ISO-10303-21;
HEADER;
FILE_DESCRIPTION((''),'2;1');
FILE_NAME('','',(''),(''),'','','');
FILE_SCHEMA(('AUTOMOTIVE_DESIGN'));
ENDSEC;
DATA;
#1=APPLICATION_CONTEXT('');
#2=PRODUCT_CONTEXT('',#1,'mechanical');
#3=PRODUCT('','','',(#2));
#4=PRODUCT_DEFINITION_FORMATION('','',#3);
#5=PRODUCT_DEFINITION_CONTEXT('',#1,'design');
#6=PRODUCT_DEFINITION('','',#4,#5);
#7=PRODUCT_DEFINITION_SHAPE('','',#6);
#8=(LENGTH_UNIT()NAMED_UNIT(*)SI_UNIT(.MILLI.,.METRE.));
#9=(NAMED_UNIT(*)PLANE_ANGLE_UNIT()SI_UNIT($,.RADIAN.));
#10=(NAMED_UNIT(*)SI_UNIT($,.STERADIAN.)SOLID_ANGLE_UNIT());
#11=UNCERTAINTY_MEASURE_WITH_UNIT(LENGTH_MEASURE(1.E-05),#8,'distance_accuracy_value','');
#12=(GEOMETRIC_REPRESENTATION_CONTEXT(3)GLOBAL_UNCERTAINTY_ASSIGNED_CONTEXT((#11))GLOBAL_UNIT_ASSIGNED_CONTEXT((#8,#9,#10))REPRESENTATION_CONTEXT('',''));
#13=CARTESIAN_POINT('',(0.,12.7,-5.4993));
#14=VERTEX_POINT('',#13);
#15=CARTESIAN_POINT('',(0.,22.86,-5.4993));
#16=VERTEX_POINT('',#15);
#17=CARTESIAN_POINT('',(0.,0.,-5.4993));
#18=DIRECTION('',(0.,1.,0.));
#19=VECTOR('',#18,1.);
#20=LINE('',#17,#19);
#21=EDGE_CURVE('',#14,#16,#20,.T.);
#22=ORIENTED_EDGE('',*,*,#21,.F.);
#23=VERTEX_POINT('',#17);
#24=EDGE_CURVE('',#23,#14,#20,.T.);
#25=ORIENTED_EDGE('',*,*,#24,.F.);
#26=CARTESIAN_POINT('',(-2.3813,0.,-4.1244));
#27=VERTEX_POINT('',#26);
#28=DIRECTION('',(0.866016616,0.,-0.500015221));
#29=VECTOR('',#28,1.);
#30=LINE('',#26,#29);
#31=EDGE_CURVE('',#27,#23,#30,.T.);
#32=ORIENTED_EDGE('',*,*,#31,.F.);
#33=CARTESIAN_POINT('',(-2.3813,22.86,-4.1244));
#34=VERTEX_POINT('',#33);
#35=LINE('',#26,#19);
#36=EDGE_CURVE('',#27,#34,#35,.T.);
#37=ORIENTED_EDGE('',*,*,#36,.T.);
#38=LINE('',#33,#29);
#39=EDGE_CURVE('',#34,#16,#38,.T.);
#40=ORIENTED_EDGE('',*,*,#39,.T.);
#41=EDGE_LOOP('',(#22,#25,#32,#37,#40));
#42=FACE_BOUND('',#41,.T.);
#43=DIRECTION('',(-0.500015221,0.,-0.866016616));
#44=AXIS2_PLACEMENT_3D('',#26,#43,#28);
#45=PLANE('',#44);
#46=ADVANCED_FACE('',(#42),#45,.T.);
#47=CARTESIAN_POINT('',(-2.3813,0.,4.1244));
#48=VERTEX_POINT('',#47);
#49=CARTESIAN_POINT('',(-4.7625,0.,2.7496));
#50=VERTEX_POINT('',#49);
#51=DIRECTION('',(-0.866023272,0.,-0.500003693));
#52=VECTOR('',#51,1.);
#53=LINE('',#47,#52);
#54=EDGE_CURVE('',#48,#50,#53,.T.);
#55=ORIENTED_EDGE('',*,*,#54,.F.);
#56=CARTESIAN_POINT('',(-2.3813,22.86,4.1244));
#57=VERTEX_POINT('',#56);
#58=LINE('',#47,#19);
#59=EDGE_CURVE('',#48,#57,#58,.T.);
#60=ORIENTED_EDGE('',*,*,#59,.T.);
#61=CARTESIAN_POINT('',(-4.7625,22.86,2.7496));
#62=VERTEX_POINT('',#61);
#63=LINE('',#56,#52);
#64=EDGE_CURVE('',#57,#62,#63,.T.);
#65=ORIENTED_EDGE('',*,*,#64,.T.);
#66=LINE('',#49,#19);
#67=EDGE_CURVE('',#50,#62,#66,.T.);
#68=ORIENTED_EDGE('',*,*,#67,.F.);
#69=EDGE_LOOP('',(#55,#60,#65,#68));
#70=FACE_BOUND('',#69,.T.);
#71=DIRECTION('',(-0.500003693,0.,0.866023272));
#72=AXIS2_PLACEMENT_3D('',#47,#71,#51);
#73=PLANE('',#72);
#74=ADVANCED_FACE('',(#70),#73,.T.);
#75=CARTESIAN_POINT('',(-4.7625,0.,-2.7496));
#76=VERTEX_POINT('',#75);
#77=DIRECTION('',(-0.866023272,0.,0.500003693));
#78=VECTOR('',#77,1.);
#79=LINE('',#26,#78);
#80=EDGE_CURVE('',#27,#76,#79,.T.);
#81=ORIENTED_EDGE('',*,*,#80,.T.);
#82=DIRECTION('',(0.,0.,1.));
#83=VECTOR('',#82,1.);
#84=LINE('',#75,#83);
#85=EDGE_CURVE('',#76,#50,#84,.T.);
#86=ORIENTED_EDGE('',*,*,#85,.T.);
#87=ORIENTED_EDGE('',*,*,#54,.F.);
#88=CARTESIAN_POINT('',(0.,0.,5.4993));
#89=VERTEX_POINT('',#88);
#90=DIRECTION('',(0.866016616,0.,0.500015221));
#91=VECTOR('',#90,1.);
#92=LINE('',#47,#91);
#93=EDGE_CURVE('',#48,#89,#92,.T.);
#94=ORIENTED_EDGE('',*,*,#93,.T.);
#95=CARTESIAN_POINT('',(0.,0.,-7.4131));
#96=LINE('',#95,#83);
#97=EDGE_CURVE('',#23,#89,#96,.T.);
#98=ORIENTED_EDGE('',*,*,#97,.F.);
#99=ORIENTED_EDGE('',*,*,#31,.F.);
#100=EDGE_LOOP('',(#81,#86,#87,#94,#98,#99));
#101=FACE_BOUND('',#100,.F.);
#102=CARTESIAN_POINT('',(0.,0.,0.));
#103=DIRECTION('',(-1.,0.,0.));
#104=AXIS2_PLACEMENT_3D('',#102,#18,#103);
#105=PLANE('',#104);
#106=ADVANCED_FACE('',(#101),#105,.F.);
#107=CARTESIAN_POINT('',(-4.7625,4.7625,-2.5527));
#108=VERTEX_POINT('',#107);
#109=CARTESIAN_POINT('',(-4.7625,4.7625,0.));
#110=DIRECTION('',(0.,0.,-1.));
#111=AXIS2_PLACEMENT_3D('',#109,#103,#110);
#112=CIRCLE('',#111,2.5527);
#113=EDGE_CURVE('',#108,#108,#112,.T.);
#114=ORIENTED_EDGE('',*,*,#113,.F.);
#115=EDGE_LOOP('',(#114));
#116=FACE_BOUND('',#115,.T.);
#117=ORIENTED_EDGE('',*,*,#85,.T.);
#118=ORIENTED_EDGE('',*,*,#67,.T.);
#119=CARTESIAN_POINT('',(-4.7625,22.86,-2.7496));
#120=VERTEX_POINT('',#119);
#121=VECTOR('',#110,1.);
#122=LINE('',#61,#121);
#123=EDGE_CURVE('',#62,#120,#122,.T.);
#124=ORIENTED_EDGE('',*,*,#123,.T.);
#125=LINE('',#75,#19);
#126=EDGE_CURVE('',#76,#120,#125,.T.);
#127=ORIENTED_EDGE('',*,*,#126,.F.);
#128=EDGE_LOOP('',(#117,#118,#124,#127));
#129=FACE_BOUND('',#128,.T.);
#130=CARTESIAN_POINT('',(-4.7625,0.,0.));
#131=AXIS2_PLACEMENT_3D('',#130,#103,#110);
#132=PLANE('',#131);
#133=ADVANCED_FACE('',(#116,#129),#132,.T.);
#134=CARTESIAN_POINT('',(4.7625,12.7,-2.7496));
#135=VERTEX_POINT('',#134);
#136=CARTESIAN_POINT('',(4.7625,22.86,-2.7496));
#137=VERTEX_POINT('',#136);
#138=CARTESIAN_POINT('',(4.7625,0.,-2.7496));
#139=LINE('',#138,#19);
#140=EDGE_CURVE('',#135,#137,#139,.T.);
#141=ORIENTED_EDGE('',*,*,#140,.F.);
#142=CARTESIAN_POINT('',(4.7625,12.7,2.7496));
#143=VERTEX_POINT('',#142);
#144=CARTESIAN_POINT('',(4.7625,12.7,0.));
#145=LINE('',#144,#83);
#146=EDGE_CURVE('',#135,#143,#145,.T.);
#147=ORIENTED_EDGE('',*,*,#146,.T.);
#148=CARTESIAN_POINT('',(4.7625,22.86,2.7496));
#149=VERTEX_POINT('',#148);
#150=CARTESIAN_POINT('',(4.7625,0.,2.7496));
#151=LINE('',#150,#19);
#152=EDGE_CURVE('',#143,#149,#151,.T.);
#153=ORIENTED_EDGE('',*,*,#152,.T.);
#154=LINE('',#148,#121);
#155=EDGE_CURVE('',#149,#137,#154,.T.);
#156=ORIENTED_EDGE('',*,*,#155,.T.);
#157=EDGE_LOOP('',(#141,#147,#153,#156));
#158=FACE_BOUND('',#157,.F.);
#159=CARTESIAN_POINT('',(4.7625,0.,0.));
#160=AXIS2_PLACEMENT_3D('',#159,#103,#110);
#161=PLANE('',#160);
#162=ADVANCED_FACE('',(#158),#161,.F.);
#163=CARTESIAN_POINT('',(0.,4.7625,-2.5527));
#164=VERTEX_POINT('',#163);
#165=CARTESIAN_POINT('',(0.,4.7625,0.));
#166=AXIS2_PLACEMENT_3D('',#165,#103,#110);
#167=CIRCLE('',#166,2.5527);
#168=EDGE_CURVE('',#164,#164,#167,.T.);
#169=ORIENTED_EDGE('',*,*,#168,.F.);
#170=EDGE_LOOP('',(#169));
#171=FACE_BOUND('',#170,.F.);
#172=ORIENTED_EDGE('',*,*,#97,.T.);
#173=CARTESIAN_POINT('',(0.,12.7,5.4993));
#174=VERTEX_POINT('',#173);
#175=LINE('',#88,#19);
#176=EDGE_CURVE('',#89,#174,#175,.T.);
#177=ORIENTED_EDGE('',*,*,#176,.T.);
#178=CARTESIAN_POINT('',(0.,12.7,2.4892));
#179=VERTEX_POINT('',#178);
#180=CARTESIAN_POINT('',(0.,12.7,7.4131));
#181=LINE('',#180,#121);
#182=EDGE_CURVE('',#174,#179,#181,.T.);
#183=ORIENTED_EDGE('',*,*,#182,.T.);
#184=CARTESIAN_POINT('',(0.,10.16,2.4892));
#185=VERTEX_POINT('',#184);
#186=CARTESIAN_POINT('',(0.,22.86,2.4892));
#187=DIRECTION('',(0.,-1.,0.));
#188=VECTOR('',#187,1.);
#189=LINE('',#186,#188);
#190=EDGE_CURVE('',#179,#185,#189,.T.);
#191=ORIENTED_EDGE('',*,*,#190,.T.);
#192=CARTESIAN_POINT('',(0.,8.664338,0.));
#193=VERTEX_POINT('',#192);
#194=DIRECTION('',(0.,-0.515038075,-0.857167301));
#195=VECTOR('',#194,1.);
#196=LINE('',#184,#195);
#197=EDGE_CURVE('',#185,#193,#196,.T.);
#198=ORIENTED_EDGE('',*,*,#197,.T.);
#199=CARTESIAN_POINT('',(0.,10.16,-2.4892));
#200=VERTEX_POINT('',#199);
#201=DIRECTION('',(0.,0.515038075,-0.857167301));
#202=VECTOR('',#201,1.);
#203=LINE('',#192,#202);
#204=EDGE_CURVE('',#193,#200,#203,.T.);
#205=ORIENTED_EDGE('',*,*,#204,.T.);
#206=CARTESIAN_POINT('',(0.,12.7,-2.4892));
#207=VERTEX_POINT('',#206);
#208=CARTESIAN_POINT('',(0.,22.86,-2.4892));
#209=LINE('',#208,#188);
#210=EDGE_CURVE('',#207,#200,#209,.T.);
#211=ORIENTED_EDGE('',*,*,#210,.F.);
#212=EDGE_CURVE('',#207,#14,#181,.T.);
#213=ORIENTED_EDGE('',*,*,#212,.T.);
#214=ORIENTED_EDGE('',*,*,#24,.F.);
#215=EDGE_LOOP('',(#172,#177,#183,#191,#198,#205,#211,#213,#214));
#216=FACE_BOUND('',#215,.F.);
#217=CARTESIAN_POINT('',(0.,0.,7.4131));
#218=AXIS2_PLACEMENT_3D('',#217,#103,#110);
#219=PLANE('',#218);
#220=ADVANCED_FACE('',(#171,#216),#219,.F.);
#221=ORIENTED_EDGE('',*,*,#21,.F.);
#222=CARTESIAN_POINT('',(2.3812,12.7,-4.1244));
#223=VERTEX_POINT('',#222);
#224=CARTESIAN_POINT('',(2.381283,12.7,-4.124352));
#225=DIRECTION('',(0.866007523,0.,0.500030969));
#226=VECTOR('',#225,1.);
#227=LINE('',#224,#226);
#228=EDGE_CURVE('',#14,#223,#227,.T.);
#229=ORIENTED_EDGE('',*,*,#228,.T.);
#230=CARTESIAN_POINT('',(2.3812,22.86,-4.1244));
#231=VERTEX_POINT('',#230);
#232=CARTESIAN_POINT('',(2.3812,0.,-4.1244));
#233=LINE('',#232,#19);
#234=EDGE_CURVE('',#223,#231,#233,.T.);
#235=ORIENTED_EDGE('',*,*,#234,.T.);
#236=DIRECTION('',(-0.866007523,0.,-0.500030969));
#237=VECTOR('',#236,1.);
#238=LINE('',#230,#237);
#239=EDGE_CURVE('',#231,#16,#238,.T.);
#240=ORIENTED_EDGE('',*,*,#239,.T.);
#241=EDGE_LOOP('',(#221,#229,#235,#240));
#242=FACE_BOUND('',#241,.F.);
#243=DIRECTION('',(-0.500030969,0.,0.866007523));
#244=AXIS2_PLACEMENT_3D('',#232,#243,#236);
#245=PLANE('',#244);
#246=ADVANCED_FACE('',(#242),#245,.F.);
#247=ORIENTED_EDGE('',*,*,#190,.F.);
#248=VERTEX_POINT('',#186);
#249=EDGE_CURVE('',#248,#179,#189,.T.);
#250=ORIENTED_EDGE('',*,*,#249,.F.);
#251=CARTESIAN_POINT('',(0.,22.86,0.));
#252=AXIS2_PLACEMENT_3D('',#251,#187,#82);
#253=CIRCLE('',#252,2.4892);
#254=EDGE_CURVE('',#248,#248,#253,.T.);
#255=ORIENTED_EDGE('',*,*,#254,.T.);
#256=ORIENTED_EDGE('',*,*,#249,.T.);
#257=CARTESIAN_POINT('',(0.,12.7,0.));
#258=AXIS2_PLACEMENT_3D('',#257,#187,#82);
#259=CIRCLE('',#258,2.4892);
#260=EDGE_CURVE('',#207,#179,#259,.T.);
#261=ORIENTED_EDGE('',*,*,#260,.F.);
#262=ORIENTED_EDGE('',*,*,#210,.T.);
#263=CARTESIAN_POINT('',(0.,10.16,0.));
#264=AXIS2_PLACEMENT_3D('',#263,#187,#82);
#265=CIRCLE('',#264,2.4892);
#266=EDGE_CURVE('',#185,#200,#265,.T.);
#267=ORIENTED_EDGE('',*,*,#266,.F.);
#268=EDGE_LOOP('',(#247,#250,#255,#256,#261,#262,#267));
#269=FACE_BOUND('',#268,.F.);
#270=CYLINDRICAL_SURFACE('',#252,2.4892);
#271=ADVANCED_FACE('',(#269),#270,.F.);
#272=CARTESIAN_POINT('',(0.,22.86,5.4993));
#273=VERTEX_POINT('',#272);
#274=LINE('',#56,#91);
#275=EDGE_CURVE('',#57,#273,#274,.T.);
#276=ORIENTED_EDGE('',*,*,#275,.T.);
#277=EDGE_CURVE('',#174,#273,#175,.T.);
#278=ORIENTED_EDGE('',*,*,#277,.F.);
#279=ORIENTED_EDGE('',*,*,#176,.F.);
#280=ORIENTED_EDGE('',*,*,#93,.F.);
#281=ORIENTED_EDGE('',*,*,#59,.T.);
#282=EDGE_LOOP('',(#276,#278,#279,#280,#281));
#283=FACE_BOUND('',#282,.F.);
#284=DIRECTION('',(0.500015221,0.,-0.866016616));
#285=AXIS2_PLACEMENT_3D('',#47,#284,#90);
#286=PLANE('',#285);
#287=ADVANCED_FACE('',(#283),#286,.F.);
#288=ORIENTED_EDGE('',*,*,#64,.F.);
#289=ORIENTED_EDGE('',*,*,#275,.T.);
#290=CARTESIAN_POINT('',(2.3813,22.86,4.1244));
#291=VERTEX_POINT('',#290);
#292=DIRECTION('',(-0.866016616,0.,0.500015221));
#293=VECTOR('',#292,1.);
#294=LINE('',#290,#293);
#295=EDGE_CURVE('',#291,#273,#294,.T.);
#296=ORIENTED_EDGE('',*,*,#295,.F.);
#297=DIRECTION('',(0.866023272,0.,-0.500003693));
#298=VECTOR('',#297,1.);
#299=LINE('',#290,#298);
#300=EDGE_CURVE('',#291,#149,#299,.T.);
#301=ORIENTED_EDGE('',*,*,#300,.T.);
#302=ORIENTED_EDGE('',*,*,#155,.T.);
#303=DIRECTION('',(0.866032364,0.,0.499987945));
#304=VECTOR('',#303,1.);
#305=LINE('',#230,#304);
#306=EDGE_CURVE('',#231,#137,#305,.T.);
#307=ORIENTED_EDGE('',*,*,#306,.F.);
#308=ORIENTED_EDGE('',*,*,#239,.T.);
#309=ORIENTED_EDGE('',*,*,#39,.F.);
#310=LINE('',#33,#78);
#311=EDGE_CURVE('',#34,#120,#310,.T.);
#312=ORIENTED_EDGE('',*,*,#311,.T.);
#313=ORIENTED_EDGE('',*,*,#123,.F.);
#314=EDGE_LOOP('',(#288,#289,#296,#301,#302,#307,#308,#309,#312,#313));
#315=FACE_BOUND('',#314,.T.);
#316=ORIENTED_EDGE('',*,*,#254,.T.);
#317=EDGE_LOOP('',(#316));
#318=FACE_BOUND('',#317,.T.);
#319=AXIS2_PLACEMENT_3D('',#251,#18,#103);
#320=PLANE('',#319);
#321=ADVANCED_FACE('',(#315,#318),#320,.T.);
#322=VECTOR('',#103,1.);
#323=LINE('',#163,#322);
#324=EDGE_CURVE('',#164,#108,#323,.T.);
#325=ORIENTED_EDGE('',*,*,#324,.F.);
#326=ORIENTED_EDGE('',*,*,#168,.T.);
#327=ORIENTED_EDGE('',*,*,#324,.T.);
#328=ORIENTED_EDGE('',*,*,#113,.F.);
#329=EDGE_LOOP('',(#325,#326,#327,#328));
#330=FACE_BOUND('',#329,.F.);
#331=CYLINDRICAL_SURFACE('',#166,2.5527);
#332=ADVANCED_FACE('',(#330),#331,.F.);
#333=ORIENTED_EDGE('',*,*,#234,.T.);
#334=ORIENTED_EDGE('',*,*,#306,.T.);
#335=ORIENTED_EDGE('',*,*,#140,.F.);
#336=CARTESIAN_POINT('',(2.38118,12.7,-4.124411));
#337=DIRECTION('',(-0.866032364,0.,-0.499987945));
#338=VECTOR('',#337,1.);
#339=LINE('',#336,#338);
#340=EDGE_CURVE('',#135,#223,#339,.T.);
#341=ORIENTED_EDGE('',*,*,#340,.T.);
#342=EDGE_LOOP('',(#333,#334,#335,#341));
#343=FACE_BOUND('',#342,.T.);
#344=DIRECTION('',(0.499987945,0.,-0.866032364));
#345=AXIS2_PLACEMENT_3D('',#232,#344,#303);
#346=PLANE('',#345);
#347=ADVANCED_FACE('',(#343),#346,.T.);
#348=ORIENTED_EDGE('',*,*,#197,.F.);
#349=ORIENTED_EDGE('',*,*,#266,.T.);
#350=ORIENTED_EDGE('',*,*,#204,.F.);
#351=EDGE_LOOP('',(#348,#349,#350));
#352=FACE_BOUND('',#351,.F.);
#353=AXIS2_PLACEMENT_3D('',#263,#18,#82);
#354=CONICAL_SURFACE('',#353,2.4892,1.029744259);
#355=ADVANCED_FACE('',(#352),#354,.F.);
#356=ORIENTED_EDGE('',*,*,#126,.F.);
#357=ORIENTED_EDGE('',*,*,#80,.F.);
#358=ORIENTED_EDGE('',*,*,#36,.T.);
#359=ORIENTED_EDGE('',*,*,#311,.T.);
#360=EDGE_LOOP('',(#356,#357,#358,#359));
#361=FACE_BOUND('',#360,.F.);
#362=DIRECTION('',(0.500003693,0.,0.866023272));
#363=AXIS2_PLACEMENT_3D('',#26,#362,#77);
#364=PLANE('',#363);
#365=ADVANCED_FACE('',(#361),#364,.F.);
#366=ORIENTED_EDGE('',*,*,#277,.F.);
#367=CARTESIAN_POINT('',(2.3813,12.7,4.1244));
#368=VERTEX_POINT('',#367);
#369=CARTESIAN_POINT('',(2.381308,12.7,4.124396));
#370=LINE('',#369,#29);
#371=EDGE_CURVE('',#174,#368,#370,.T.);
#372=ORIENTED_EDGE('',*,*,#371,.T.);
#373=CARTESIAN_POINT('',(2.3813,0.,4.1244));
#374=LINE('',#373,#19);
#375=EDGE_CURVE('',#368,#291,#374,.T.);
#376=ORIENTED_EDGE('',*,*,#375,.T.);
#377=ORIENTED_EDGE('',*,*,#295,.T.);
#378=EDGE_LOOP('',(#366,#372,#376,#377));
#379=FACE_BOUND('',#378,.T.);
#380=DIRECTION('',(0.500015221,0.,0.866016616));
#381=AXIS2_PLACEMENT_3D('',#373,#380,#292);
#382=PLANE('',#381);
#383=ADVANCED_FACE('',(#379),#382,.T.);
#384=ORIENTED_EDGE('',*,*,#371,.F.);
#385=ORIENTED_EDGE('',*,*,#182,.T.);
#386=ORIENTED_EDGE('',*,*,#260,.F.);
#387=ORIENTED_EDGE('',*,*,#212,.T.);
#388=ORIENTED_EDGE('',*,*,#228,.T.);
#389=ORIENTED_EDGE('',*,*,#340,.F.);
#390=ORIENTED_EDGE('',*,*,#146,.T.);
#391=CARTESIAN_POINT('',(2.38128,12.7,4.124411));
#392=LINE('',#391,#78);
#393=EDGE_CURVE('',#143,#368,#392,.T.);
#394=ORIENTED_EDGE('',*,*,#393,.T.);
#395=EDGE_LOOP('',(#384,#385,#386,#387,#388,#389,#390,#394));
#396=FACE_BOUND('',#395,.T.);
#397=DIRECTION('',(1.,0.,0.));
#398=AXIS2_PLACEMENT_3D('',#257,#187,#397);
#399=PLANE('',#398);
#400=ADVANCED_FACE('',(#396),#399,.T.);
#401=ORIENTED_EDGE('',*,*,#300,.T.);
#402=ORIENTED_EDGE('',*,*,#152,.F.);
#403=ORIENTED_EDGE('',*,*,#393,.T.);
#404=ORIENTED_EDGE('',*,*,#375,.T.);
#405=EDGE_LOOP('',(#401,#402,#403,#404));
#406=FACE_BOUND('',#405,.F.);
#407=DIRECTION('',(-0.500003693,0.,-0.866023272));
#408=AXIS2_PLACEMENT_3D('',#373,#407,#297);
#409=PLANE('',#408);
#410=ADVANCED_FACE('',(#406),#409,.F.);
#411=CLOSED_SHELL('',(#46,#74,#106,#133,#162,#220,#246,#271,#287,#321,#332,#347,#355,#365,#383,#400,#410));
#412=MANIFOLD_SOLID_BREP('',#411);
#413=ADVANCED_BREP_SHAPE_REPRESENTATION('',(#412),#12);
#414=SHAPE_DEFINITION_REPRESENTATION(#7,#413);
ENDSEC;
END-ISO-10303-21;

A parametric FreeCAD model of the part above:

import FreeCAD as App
import Part
import Sketcher
Q = App.Units.Quantity

doc = App.newDocument("Part")
params = doc.addObject("Spreadsheet::Sheet", "Params")
for row, (alias, value) in enumerate([
    ("pad1_length", "0.9 in"),
    ("sketch2_diameter", "0.196 in"),
    ("hole_diameter", "0.196 in"),
    ("hole_depth", "0.5 in"),
    ("pocket1_length", "0.5 in"),
    ("sketch4_diameter", "0.201 in"),
    ("hole2_diameter", "0.201 in"),
], start=1):
    params.set(f"A{row}", alias)
    params.set(f"B{row}", "=" + value)
    params.setAlias(f"B{row}", alias)

body = doc.addObject("PartDesign::Body", "Body")

# Sketch on XZ plane
sketch1 = body.newObject("Sketcher::SketchObject", "Sketch")
sketch1.AttachmentSupport = (doc.getObject("XZ_Plane"), [""])
sketch1.MapMode = "FlatFace"
sketch1.addGeometry([
    Part.LineSegment(App.Vector(-4.8, -2.7, 0), App.Vector(-4.8, 2.7, 0)),  # 0
    Part.LineSegment(App.Vector(-4.8, 2.7, 0), App.Vector(-2.4, 4.1, 0)),  # 1
    Part.LineSegment(App.Vector(-2.4, 4.1, 0), App.Vector(0, 5.5, 0)),  # 2
    Part.LineSegment(App.Vector(0, 5.5, 0), App.Vector(2.4, 4.1, 0)),  # 3
    Part.LineSegment(App.Vector(2.4, 4.1, 0), App.Vector(4.8, 2.7, 0)),  # 4
    Part.LineSegment(App.Vector(4.8, 2.7, 0), App.Vector(4.8, -2.7, 0)),  # 5
    Part.LineSegment(App.Vector(4.8, -2.7, 0), App.Vector(2.4, -4.1, 0)),  # 6
    Part.LineSegment(App.Vector(2.4, -4.1, 0), App.Vector(0, -5.5, 0)),  # 7
    Part.LineSegment(App.Vector(0, -5.5, 0), App.Vector(-2.4, -4.1, 0)),  # 8
    Part.LineSegment(App.Vector(-2.4, -4.1, 0), App.Vector(-4.8, -2.7, 0)),  # 9
], False)
sketch1.addConstraint([
    Sketcher.Constraint("Coincident", 0, 2, 1, 1),
    Sketcher.Constraint("Coincident", 1, 2, 2, 1),
    Sketcher.Constraint("Coincident", 2, 2, 3, 1),
    Sketcher.Constraint("Coincident", 3, 2, 4, 1),
    Sketcher.Constraint("Coincident", 4, 2, 5, 1),
    Sketcher.Constraint("Coincident", 5, 2, 6, 1),
    Sketcher.Constraint("Coincident", 6, 2, 7, 1),
    Sketcher.Constraint("Coincident", 7, 2, 8, 1),
    Sketcher.Constraint("Coincident", 8, 2, 9, 1),
    Sketcher.Constraint("Coincident", 9, 2, 0, 1),
    Sketcher.Constraint("Vertical", 0),
    Sketcher.Constraint("Vertical", 5),
    Sketcher.Constraint("Symmetric", 0, 2, 5, 2, -1, 1),
    Sketcher.Constraint("Symmetric", 1, 2, 6, 2, -1, 1),
    Sketcher.Constraint("Symmetric", 2, 2, 7, 2, -1, 1),
    Sketcher.Constraint("Symmetric", 3, 2, 8, 2, -1, 1),
    Sketcher.Constraint("Symmetric", 1, 2, 3, 2, -2),
    Sketcher.Constraint("PointOnObject", 2, 2, -2),
    Sketcher.Constraint("Parallel", 1, 2),
    Sketcher.Constraint("Parallel", 3, 4),
    Sketcher.Constraint("Parallel", 8, 9),
    Sketcher.Constraint("Equal", 1, 2),
    Sketcher.Constraint("DistanceX", 0, 2, -1, 1, Q("0.1875 in")),
    Sketcher.Constraint("Angle", 1, Q("30.0002 deg")),
    Sketcher.Constraint("DistanceY", 0, 1, 0, 2, Q("0.2165 in")),
])
pad1 = body.newObject("PartDesign::Pad", "Pad")
pad1.Profile = sketch1
pad1.setExpression("Length", "Params.pad1_length")
pad1.Reversed = True

# Sketch on XZ plane
sketch2 = body.newObject("Sketcher::SketchObject", "Sketch001")
sketch2.AttachmentSupport = (doc.getObject("XZ_Plane"), [""])
sketch2.MapMode = "FlatFace"
sketch2.AttachmentOffset = App.Placement(App.Vector(0, 0, -0.9 * 25.4), App.Rotation())
sketch2.addGeometry(Part.Circle(App.Vector(0, 0, 0), App.Vector(0, 0, 1), 2.5), False)
sketch2.addConstraint([
    Sketcher.Constraint("Coincident", 0, 3, -1, 1),
    Sketcher.Constraint("Diameter", 0, Q("0.196 in")),
])
sketch2.setExpression("Constraints[1]", "Params.sketch2_diameter")
doc.recompute()
hole = body.newObject("PartDesign::Hole", "Hole")
hole.Profile = sketch2
hole.ThreadType = "None"
hole.setExpression("Diameter", "Params.hole_diameter")
hole.DepthType = "Dimension"
hole.setExpression("Depth", "Params.hole_depth")
hole.DrillPoint = "Angled"
hole.DrillPointAngle = 118
hole.Reversed = True

# Sketch on XZ plane
sketch3 = body.newObject("Sketcher::SketchObject", "Sketch002")
sketch3.AttachmentSupport = (doc.getObject("XZ_Plane"), [""])
sketch3.MapMode = "FlatFace"
sketch3.addGeometry([
    Part.LineSegment(App.Vector(0, 7, 0), App.Vector(0, -7, 0)),
    Part.LineSegment(App.Vector(0, -7, 0), App.Vector(9, -7, 0)),
    Part.LineSegment(App.Vector(9, -7, 0), App.Vector(9, 7, 0)),
    Part.LineSegment(App.Vector(9, 7, 0), App.Vector(0, 7, 0)),
], False)
sketch3.addConstraint([
    Sketcher.Constraint("Coincident", 0, 2, 1, 1),
    Sketcher.Constraint("Coincident", 1, 2, 2, 1),
    Sketcher.Constraint("Coincident", 2, 2, 3, 1),
    Sketcher.Constraint("Coincident", 3, 2, 0, 1),
    Sketcher.Constraint("Vertical", 0),
    Sketcher.Constraint("Horizontal", 1),
    Sketcher.Constraint("Vertical", 2),
    Sketcher.Constraint("Horizontal", 3),
    Sketcher.Constraint("Symmetric", 0, 2, 3, 2, -1, 1),
    Sketcher.Constraint("DistanceY", 0, 2, 0, 1, Q("0.5837 in")),
    Sketcher.Constraint("DistanceX", 1, 1, 1, 2, Q("9.2843 mm")),
])
pocket1 = body.newObject("PartDesign::Pocket", "Pocket")
pocket1.Profile = sketch3
pocket1.setExpression("Length", "Params.pocket1_length")

# Sketch on YZ plane
sketch4 = body.newObject("Sketcher::SketchObject", "Sketch003")
sketch4.AttachmentSupport = (doc.getObject("YZ_Plane"), [""])
sketch4.MapMode = "FlatFace"
sketch4.addGeometry(Part.Circle(App.Vector(4.8, 0, 0), App.Vector(0, 0, 1), 2.6), False)
sketch4.addConstraint([
    Sketcher.Constraint("PointOnObject", 0, 3, -1),
    Sketcher.Constraint("Diameter", 0, Q("0.201 in")),
    Sketcher.Constraint("DistanceX", -1, 1, 0, 3, Q("0.1875 in")),
])
sketch4.setExpression("Constraints[1]", "Params.sketch4_diameter")
doc.recompute()
hole2 = body.newObject("PartDesign::Hole", "Hole001")
hole2.Profile = sketch4
hole2.ThreadType = "None"
hole2.setExpression("Diameter", "Params.hole2_diameter")
hole2.DepthType = "ThroughAll"

doc.recompute()
